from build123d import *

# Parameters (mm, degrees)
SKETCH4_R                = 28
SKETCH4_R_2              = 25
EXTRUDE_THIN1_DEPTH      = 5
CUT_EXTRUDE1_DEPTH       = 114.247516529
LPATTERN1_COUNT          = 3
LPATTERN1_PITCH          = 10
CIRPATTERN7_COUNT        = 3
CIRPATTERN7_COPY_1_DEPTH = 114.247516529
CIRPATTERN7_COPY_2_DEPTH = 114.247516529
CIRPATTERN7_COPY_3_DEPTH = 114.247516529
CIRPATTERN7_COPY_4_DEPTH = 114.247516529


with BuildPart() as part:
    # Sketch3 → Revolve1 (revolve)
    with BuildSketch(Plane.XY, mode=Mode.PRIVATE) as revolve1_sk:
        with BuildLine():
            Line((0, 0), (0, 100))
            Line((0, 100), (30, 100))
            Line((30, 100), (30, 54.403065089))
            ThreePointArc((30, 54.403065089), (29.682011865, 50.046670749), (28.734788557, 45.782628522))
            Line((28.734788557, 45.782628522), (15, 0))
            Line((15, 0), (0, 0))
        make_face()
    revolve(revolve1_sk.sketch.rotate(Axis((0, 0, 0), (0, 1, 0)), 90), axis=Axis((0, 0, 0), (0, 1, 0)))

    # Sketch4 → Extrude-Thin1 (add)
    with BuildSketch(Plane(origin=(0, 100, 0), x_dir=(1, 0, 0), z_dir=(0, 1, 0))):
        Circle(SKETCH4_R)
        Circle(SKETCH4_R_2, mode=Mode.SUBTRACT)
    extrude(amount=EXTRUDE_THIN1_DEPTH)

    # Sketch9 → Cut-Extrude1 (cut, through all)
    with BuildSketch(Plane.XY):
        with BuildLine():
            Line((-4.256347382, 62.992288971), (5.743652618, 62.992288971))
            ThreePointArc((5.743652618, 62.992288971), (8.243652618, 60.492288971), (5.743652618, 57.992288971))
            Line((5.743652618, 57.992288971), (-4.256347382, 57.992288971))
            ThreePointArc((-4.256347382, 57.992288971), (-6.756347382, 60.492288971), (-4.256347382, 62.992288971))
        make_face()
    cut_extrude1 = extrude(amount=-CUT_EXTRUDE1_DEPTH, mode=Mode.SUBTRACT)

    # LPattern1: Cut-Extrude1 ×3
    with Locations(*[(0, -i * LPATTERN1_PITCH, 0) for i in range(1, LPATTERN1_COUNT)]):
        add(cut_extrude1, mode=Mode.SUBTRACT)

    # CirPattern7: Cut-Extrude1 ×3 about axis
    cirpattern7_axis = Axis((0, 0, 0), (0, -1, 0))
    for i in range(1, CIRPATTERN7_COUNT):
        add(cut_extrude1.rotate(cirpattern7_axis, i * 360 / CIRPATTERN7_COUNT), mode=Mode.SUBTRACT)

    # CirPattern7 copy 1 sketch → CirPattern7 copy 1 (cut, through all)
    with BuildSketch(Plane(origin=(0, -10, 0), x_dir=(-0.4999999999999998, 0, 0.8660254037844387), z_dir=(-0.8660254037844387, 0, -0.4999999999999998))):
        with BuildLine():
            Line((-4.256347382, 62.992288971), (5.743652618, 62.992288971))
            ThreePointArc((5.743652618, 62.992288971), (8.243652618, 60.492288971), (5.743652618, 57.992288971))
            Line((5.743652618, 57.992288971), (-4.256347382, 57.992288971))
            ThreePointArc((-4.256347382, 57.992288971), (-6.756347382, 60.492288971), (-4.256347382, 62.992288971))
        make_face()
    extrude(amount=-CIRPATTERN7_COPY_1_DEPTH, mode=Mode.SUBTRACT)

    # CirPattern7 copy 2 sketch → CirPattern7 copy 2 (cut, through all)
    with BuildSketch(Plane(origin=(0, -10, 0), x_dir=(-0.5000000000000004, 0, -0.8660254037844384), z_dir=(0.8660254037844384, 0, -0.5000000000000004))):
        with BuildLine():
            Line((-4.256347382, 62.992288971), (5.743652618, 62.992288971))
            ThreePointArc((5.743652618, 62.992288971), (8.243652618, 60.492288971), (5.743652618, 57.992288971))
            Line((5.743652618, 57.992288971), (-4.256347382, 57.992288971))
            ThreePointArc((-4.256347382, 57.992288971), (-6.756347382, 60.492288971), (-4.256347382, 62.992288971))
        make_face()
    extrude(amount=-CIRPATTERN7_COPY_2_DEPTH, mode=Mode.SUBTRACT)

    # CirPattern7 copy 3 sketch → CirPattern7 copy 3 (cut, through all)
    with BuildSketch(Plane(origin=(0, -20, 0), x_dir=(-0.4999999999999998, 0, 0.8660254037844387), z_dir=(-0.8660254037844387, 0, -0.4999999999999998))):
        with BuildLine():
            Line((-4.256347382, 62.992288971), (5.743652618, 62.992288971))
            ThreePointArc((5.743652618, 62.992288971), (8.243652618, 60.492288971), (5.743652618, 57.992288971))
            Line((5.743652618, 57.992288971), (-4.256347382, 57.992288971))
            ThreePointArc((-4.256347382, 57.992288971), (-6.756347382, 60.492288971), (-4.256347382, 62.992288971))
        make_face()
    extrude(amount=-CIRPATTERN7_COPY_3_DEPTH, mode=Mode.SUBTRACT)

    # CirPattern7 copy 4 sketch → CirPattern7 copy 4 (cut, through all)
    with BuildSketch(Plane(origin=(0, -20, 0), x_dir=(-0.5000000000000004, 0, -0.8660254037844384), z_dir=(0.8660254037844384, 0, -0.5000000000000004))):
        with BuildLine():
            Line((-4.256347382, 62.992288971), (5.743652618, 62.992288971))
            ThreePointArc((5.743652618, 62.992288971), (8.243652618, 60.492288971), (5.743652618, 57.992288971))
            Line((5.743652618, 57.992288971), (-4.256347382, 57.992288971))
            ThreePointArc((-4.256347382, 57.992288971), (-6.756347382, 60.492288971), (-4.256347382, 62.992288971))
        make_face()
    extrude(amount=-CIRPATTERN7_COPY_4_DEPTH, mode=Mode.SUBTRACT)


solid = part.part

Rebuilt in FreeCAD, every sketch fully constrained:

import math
import FreeCAD as App
import Part
import Sketcher
Q = App.Units.Quantity

doc = App.newDocument("Part")
params = doc.addObject("Spreadsheet::Sheet", "Params")
for row, (alias, value) in enumerate([
    ("sketch1_radius", "30 mm"),
    ("sketch1_width", "15 mm"),
    ("sketch1_height", "100 mm"),
    ("revolution_angle", "360 deg"),
    ("sketch2_diameter", "56 mm"),
    ("sketch2_diameter2", "50 mm"),
    ("pad1_length", "5 mm"),
    ("sketch3_radius", "2.5 mm"),
    ("sketch3_width", "10 mm"),
    ("linearpattern_pitch", "10 mm"),
    ("sketch4_radius", "2.5 mm"),
    ("sketch4_width", "10 mm"),
    ("sketch5_radius", "2.5 mm"),
    ("sketch5_width", "10 mm"),
    ("sketch6_radius", "2.5 mm"),
    ("sketch6_width", "10 mm"),
    ("sketch7_radius", "2.5 mm"),
    ("sketch7_width", "10 mm"),
], start=1):
    params.set(f"A{row}", alias)
    params.set(f"B{row}", "=" + value)
    params.setAlias(f"B{row}", alias)

body = doc.addObject("PartDesign::Body", "Body")

sketch1 = body.newObject("Sketcher::SketchObject", "Sketch")
sketch1.AttachmentSupport = (doc.getObject("XY_Plane"), [""])
sketch1.MapMode = "FlatFace"
sketch1.addGeometry([
    Part.LineSegment(App.Vector(0, 100, 0), App.Vector(0, 0, 0)),
    Part.LineSegment(App.Vector(0, 0, 0), App.Vector(15, 0, 0)),
    Part.LineSegment(App.Vector(15, 0, 0), App.Vector(28.734789, 45.782629, 0)),
    Part.ArcOfCircle(Part.Circle(App.Vector(0, 54.403065, 0), App.Vector(0, 0, 1), 30), math.radians(-16.699244), math.radians(0)),
    Part.LineSegment(App.Vector(30, 54.403065, 0), App.Vector(30, 100, 0)),
    Part.LineSegment(App.Vector(30, 100, 0), App.Vector(0, 100, 0)),
], False)
sketch1.addConstraint([
    Sketcher.Constraint("Coincident", 0, 2, 1, 1),
    Sketcher.Constraint("Coincident", 1, 2, 2, 1),
    Sketcher.Constraint("Tangent", 2, 2, 3, 1),
    Sketcher.Constraint("Tangent", 3, 2, 4, 1),
    Sketcher.Constraint("Coincident", 4, 2, 5, 1),
    Sketcher.Constraint("Coincident", 5, 2, 0, 1),
    Sketcher.Constraint("Vertical", 0),
    Sketcher.Constraint("Horizontal", 1),
    Sketcher.Constraint("Vertical", 4),
    Sketcher.Constraint("Horizontal", 5),
    Sketcher.Constraint("Coincident", 0, 2, -1, 1),
    Sketcher.Constraint("PointOnObject", 3, 3, -2),
    Sketcher.Constraint("Radius", 3, Q("30 mm")),
    Sketcher.Constraint("DistanceX", 1, 1, 1, 2, Q("15 mm")),
    Sketcher.Constraint("DistanceY", 0, 2, 0, 1, Q("100 mm")),
    Sketcher.Constraint("DistanceY", 4, 1, 4, 2, Q("45.596935 mm")),
])
sketch1.setExpression("Constraints[12]", "Params.sketch1_radius")
sketch1.setExpression("Constraints[13]", "Params.sketch1_width")
sketch1.setExpression("Constraints[14]", "Params.sketch1_height")
revolution = body.newObject("PartDesign::Revolution", "Revolution")
revolution.Profile = sketch1
revolution.ReferenceAxis = (sketch1, ["V_Axis"])
revolution.setExpression("Angle", "Params.revolution_angle")

sketch2 = body.newObject("Sketcher::SketchObject", "Sketch001")
sketch2.AttachmentSupport = (doc.getObject("XZ_Plane"), [""])
sketch2.MapMode = "FlatFace"
sketch2.AttachmentOffset = App.Placement(App.Vector(0, 0, -100), App.Rotation())
sketch2.addGeometry([
    Part.Circle(App.Vector(0, 0, 0), App.Vector(0, 0, 1), 28),
    Part.Circle(App.Vector(0, 0, 0), App.Vector(0, 0, 1), 25),
], False)
sketch2.addConstraint([
    Sketcher.Constraint("Coincident", 0, 3, -1, 1),
    Sketcher.Constraint("Coincident", 1, 3, -1, 1),
    Sketcher.Constraint("Diameter", 0, Q("56 mm")),
    Sketcher.Constraint("Diameter", 1, Q("50 mm")),
])
sketch2.setExpression("Constraints[2]", "Params.sketch2_diameter")
sketch2.setExpression("Constraints[3]", "Params.sketch2_diameter2")
pad1 = body.newObject("PartDesign::Pad", "Pad")
pad1.Profile = sketch2
pad1.setExpression("Length", "Params.pad1_length")
pad1.Reversed = True

sketch3 = body.newObject("Sketcher::SketchObject", "Sketch002")
sketch3.AttachmentSupport = (doc.getObject("XY_Plane"), [""])
sketch3.MapMode = "FlatFace"
sketch3.addGeometry([
    Part.LineSegment(App.Vector(5.743653, 62.992289, 0), App.Vector(-4.256347, 62.992289, 0)),
    Part.ArcOfCircle(Part.Circle(App.Vector(-4.256347, 60.492289, 0), App.Vector(0, 0, 1), 2.5), math.radians(90), math.radians(270)),
    Part.LineSegment(App.Vector(-4.256347, 57.992289, 0), App.Vector(5.743653, 57.992289, 0)),
    Part.ArcOfCircle(Part.Circle(App.Vector(5.743653, 60.492289, 0), App.Vector(0, 0, 1), 2.5), math.radians(-90), math.radians(90)),
], False)
sketch3.addConstraint([
    Sketcher.Constraint("Tangent", 0, 2, 1, 1),
    Sketcher.Constraint("Tangent", 1, 2, 2, 1),
    Sketcher.Constraint("Tangent", 2, 2, 3, 1),
    Sketcher.Constraint("Tangent", 3, 2, 0, 1),
    Sketcher.Constraint("Horizontal", 0),
    Sketcher.Constraint("Horizontal", 2),
    Sketcher.Constraint("Radius", 1, Q("2.5 mm")),
    Sketcher.Constraint("DistanceX", 0, 2, 0, 1, Q("10 mm")),
    Sketcher.Constraint("DistanceY", -1, 1, 1, 3, Q("60.492289 mm")),
    Sketcher.Constraint("DistanceX", 1, 3, -1, 1, Q("4.256347 mm")),
])
sketch3.setExpression("Constraints[6]", "Params.sketch3_radius")
sketch3.setExpression("Constraints[7]", "Params.sketch3_width")
pocket1 = body.newObject("PartDesign::Pocket", "Pocket")
pocket1.Profile = sketch3
pocket1.Type = "ThroughAll"
doc.recompute()

linearpattern = body.newObject("PartDesign::LinearPattern", "LinearPattern")
linearpattern.Originals = [pocket1]
linearpattern.Direction = (doc.getObject("Y_Axis"), [""])
linearpattern.Mode = "offset"
linearpattern.setExpression("Offset", "Params.linearpattern_pitch")
linearpattern.Occurrences = 3
linearpattern.Reversed = True
body.Tip = linearpattern
doc.recompute()

polarpattern = body.newObject("PartDesign::PolarPattern", "PolarPattern")
polarpattern.Originals = [pocket1]
polarpattern.Axis = (doc.getObject("Y_Axis"), [""])
polarpattern.Angle = 360
polarpattern.Occurrences = 3
body.Tip = polarpattern

sketch4 = body.newObject("Sketcher::SketchObject", "Sketch003")
sketch4.Placement = App.Placement(App.Vector(0, -10, 0), App.Rotation(App.Vector(-0.5, 0, 0.866025404), App.Vector(0, 1, 0), App.Vector(-0.866025404, 0, -0.5), "ZXY"))
sketch4.addGeometry([
    Part.LineSegment(App.Vector(5.743653, 62.992289, 0), App.Vector(-4.256347, 62.992289, 0)),
    Part.ArcOfCircle(Part.Circle(App.Vector(-4.256347, 60.492289, 0), App.Vector(0, 0, 1), 2.5), math.radians(90), math.radians(270)),
    Part.LineSegment(App.Vector(-4.256347, 57.992289, 0), App.Vector(5.743653, 57.992289, 0)),
    Part.ArcOfCircle(Part.Circle(App.Vector(5.743653, 60.492289, 0), App.Vector(0, 0, 1), 2.5), math.radians(-90), math.radians(90)),
], False)
sketch4.addConstraint([
    Sketcher.Constraint("Tangent", 0, 2, 1, 1),
    Sketcher.Constraint("Tangent", 1, 2, 2, 1),
    Sketcher.Constraint("Tangent", 2, 2, 3, 1),
    Sketcher.Constraint("Tangent", 3, 2, 0, 1),
    Sketcher.Constraint("Horizontal", 0),
    Sketcher.Constraint("Horizontal", 2),
    Sketcher.Constraint("Radius", 1, Q("2.5 mm")),
    Sketcher.Constraint("DistanceX", 0, 2, 0, 1, Q("10 mm")),
    Sketcher.Constraint("DistanceY", -1, 1, 1, 3, Q("60.492289 mm")),
    Sketcher.Constraint("DistanceX", 1, 3, -1, 1, Q("4.256347 mm")),
])
sketch4.setExpression("Constraints[6]", "Params.sketch4_radius")
sketch4.setExpression("Constraints[7]", "Params.sketch4_width")
pocket2 = body.newObject("PartDesign::Pocket", "Pocket001")
pocket2.Profile = sketch4
pocket2.Type = "ThroughAll"

sketch5 = body.newObject("Sketcher::SketchObject", "Sketch004")
sketch5.Placement = App.Placement(App.Vector(0, -10, 0), App.Rotation(App.Vector(-0.5, 0, -0.866025404), App.Vector(0, 1, 0), App.Vector(0.866025404, 0, -0.5), "ZXY"))
sketch5.addGeometry([
    Part.LineSegment(App.Vector(5.743653, 62.992289, 0), App.Vector(-4.256347, 62.992289, 0)),
    Part.ArcOfCircle(Part.Circle(App.Vector(-4.256347, 60.492289, 0), App.Vector(0, 0, 1), 2.5), math.radians(90), math.radians(270)),
    Part.LineSegment(App.Vector(-4.256347, 57.992289, 0), App.Vector(5.743653, 57.992289, 0)),
    Part.ArcOfCircle(Part.Circle(App.Vector(5.743653, 60.492289, 0), App.Vector(0, 0, 1), 2.5), math.radians(-90), math.radians(90)),
], False)
sketch5.addConstraint([
    Sketcher.Constraint("Tangent", 0, 2, 1, 1),
    Sketcher.Constraint("Tangent", 1, 2, 2, 1),
    Sketcher.Constraint("Tangent", 2, 2, 3, 1),
    Sketcher.Constraint("Tangent", 3, 2, 0, 1),
    Sketcher.Constraint("Horizontal", 0),
    Sketcher.Constraint("Horizontal", 2),
    Sketcher.Constraint("Radius", 1, Q("2.5 mm")),
    Sketcher.Constraint("DistanceX", 0, 2, 0, 1, Q("10 mm")),
    Sketcher.Constraint("DistanceY", -1, 1, 1, 3, Q("60.492289 mm")),
    Sketcher.Constraint("DistanceX", 1, 3, -1, 1, Q("4.256347 mm")),
])
sketch5.setExpression("Constraints[6]", "Params.sketch5_radius")
sketch5.setExpression("Constraints[7]", "Params.sketch5_width")
pocket3 = body.newObject("PartDesign::Pocket", "Pocket002")
pocket3.Profile = sketch5
pocket3.Type = "ThroughAll"

sketch6 = body.newObject("Sketcher::SketchObject", "Sketch005")
sketch6.Placement = App.Placement(App.Vector(0, -20, 0), App.Rotation(App.Vector(-0.5, 0, 0.866025404), App.Vector(0, 1, 0), App.Vector(-0.866025404, 0, -0.5), "ZXY"))
sketch6.addGeometry([
    Part.LineSegment(App.Vector(5.743653, 62.992289, 0), App.Vector(-4.256347, 62.992289, 0)),
    Part.ArcOfCircle(Part.Circle(App.Vector(-4.256347, 60.492289, 0), App.Vector(0, 0, 1), 2.5), math.radians(90), math.radians(270)),
    Part.LineSegment(App.Vector(-4.256347, 57.992289, 0), App.Vector(5.743653, 57.992289, 0)),
    Part.ArcOfCircle(Part.Circle(App.Vector(5.743653, 60.492289, 0), App.Vector(0, 0, 1), 2.5), math.radians(-90), math.radians(90)),
], False)
sketch6.addConstraint([
    Sketcher.Constraint("Tangent", 0, 2, 1, 1),
    Sketcher.Constraint("Tangent", 1, 2, 2, 1),
    Sketcher.Constraint("Tangent", 2, 2, 3, 1),
    Sketcher.Constraint("Tangent", 3, 2, 0, 1),
    Sketcher.Constraint("Horizontal", 0),
    Sketcher.Constraint("Horizontal", 2),
    Sketcher.Constraint("Radius", 1, Q("2.5 mm")),
    Sketcher.Constraint("DistanceX", 0, 2, 0, 1, Q("10 mm")),
    Sketcher.Constraint("DistanceY", -1, 1, 1, 3, Q("60.492289 mm")),
    Sketcher.Constraint("DistanceX", 1, 3, -1, 1, Q("4.256347 mm")),
])
sketch6.setExpression("Constraints[6]", "Params.sketch6_radius")
sketch6.setExpression("Constraints[7]", "Params.sketch6_width")
pocket4 = body.newObject("PartDesign::Pocket", "Pocket003")
pocket4.Profile = sketch6
pocket4.Type = "ThroughAll"

sketch7 = body.newObject("Sketcher::SketchObject", "Sketch006")
sketch7.Placement = App.Placement(App.Vector(0, -20, 0), App.Rotation(App.Vector(-0.5, 0, -0.866025404), App.Vector(0, 1, 0), App.Vector(0.866025404, 0, -0.5), "ZXY"))
sketch7.addGeometry([
    Part.LineSegment(App.Vector(5.743653, 62.992289, 0), App.Vector(-4.256347, 62.992289, 0)),
    Part.ArcOfCircle(Part.Circle(App.Vector(-4.256347, 60.492289, 0), App.Vector(0, 0, 1), 2.5), math.radians(90), math.radians(270)),
    Part.LineSegment(App.Vector(-4.256347, 57.992289, 0), App.Vector(5.743653, 57.992289, 0)),
    Part.ArcOfCircle(Part.Circle(App.Vector(5.743653, 60.492289, 0), App.Vector(0, 0, 1), 2.5), math.radians(-90), math.radians(90)),
], False)
sketch7.addConstraint([
    Sketcher.Constraint("Tangent", 0, 2, 1, 1),
    Sketcher.Constraint("Tangent", 1, 2, 2, 1),
    Sketcher.Constraint("Tangent", 2, 2, 3, 1),
    Sketcher.Constraint("Tangent", 3, 2, 0, 1),
    Sketcher.Constraint("Horizontal", 0),
    Sketcher.Constraint("Horizontal", 2),
    Sketcher.Constraint("Radius", 1, Q("2.5 mm")),
    Sketcher.Constraint("DistanceX", 0, 2, 0, 1, Q("10 mm")),
    Sketcher.Constraint("DistanceY", -1, 1, 1, 3, Q("60.492289 mm")),
    Sketcher.Constraint("DistanceX", 1, 3, -1, 1, Q("4.256347 mm")),
])
sketch7.setExpression("Constraints[6]", "Params.sketch7_radius")
sketch7.setExpression("Constraints[7]", "Params.sketch7_width")
pocket5 = body.newObject("PartDesign::Pocket", "Pocket004")
pocket5.Profile = sketch7
pocket5.Type = "ThroughAll"

doc.recompute()
